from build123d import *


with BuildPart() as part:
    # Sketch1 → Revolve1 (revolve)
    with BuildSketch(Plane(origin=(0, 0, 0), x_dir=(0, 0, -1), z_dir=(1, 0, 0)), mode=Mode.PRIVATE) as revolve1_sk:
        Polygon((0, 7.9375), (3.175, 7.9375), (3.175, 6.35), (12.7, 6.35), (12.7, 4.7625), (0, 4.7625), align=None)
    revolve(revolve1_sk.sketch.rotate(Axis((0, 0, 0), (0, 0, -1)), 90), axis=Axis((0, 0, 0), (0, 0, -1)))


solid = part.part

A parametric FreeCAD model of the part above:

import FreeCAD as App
import Part
import Sketcher

V = App.Vector
Q = App.Units.Quantity

doc = App.newDocument("Part")
params = doc.addObject("Spreadsheet::Sheet", "Params")
for row, (alias, value) in enumerate([
    ("sketch1_height", "0.5 in"),
    ("sketch1_width", "0.125 in"),
    ("revolution_angle", "360 deg"),
], start=1):
    params.set(f"A{row}", alias)
    params.set(f"B{row}", "=" + value)
    params.setAlias(f"B{row}", alias)

body = doc.addObject("PartDesign::Body", "Body")

# Sketch on YZ plane
sketch1 = doc.addObject("Sketcher::SketchObject", "Sketch")
body.addObject(sketch1)
sketch1.AttachmentSupport = (doc.YZ_Plane, [""])
sketch1.MapMode = "FlatFace"
sketch1.addGeometry([
    Part.LineSegment(V(7.9, -3.2, 0), V(7.9, 0, 0)),  # 0
    Part.LineSegment(V(7.9, 0, 0), V(4.8, 0, 0)),  # 1
    Part.LineSegment(V(4.8, 0, 0), V(4.8, -12.7, 0)),  # 2
    Part.LineSegment(V(4.8, -12.7, 0), V(6.3, -12.7, 0)),  # 3
    Part.LineSegment(V(6.3, -12.7, 0), V(6.3, -3.2, 0)),  # 4
    Part.LineSegment(V(6.3, -3.2, 0), V(7.9, -3.2, 0)),  # 5
], False)
sketch1.addConstraint([
    Sketcher.Constraint("Coincident", 0, 2, 1, 1),
    Sketcher.Constraint("Coincident", 1, 2, 2, 1),
    Sketcher.Constraint("Coincident", 2, 2, 3, 1),
    Sketcher.Constraint("Coincident", 3, 2, 4, 1),
    Sketcher.Constraint("Coincident", 4, 2, 5, 1),
    Sketcher.Constraint("Coincident", 5, 2, 0, 1),
    Sketcher.Constraint("Vertical", 0),
    Sketcher.Constraint("Horizontal", 1),
    Sketcher.Constraint("Vertical", 2),
    Sketcher.Constraint("Horizontal", 3),
    Sketcher.Constraint("Vertical", 4),
    Sketcher.Constraint("Horizontal", 5),
    Sketcher.Constraint("PointOnObject", 0, 2, -1),
    Sketcher.Constraint("Equal", 3, 5),
    Sketcher.Constraint("Equal", 1, 0),
    Sketcher.Constraint("DistanceY", 2, 2, 2, 1, Q("0.5 in")),
    Sketcher.Constraint("DistanceX", 1, 2, 1, 1, Q("0.125 in")),
    Sketcher.Constraint("DistanceX", -1, 1, 3, 2, Q("0.25 in")),
])
sketch1.setExpression("Constraints[15]", "Params.sketch1_height")
sketch1.setExpression("Constraints[16]", "Params.sketch1_width")
revolution = doc.addObject("PartDesign::Revolution", "Revolution")
body.addObject(revolution)
revolution.Profile = sketch1
revolution.ReferenceAxis = (sketch1, ["V_Axis"])
revolution.setExpression("Angle", "Params.revolution_angle")

doc.recompute()
